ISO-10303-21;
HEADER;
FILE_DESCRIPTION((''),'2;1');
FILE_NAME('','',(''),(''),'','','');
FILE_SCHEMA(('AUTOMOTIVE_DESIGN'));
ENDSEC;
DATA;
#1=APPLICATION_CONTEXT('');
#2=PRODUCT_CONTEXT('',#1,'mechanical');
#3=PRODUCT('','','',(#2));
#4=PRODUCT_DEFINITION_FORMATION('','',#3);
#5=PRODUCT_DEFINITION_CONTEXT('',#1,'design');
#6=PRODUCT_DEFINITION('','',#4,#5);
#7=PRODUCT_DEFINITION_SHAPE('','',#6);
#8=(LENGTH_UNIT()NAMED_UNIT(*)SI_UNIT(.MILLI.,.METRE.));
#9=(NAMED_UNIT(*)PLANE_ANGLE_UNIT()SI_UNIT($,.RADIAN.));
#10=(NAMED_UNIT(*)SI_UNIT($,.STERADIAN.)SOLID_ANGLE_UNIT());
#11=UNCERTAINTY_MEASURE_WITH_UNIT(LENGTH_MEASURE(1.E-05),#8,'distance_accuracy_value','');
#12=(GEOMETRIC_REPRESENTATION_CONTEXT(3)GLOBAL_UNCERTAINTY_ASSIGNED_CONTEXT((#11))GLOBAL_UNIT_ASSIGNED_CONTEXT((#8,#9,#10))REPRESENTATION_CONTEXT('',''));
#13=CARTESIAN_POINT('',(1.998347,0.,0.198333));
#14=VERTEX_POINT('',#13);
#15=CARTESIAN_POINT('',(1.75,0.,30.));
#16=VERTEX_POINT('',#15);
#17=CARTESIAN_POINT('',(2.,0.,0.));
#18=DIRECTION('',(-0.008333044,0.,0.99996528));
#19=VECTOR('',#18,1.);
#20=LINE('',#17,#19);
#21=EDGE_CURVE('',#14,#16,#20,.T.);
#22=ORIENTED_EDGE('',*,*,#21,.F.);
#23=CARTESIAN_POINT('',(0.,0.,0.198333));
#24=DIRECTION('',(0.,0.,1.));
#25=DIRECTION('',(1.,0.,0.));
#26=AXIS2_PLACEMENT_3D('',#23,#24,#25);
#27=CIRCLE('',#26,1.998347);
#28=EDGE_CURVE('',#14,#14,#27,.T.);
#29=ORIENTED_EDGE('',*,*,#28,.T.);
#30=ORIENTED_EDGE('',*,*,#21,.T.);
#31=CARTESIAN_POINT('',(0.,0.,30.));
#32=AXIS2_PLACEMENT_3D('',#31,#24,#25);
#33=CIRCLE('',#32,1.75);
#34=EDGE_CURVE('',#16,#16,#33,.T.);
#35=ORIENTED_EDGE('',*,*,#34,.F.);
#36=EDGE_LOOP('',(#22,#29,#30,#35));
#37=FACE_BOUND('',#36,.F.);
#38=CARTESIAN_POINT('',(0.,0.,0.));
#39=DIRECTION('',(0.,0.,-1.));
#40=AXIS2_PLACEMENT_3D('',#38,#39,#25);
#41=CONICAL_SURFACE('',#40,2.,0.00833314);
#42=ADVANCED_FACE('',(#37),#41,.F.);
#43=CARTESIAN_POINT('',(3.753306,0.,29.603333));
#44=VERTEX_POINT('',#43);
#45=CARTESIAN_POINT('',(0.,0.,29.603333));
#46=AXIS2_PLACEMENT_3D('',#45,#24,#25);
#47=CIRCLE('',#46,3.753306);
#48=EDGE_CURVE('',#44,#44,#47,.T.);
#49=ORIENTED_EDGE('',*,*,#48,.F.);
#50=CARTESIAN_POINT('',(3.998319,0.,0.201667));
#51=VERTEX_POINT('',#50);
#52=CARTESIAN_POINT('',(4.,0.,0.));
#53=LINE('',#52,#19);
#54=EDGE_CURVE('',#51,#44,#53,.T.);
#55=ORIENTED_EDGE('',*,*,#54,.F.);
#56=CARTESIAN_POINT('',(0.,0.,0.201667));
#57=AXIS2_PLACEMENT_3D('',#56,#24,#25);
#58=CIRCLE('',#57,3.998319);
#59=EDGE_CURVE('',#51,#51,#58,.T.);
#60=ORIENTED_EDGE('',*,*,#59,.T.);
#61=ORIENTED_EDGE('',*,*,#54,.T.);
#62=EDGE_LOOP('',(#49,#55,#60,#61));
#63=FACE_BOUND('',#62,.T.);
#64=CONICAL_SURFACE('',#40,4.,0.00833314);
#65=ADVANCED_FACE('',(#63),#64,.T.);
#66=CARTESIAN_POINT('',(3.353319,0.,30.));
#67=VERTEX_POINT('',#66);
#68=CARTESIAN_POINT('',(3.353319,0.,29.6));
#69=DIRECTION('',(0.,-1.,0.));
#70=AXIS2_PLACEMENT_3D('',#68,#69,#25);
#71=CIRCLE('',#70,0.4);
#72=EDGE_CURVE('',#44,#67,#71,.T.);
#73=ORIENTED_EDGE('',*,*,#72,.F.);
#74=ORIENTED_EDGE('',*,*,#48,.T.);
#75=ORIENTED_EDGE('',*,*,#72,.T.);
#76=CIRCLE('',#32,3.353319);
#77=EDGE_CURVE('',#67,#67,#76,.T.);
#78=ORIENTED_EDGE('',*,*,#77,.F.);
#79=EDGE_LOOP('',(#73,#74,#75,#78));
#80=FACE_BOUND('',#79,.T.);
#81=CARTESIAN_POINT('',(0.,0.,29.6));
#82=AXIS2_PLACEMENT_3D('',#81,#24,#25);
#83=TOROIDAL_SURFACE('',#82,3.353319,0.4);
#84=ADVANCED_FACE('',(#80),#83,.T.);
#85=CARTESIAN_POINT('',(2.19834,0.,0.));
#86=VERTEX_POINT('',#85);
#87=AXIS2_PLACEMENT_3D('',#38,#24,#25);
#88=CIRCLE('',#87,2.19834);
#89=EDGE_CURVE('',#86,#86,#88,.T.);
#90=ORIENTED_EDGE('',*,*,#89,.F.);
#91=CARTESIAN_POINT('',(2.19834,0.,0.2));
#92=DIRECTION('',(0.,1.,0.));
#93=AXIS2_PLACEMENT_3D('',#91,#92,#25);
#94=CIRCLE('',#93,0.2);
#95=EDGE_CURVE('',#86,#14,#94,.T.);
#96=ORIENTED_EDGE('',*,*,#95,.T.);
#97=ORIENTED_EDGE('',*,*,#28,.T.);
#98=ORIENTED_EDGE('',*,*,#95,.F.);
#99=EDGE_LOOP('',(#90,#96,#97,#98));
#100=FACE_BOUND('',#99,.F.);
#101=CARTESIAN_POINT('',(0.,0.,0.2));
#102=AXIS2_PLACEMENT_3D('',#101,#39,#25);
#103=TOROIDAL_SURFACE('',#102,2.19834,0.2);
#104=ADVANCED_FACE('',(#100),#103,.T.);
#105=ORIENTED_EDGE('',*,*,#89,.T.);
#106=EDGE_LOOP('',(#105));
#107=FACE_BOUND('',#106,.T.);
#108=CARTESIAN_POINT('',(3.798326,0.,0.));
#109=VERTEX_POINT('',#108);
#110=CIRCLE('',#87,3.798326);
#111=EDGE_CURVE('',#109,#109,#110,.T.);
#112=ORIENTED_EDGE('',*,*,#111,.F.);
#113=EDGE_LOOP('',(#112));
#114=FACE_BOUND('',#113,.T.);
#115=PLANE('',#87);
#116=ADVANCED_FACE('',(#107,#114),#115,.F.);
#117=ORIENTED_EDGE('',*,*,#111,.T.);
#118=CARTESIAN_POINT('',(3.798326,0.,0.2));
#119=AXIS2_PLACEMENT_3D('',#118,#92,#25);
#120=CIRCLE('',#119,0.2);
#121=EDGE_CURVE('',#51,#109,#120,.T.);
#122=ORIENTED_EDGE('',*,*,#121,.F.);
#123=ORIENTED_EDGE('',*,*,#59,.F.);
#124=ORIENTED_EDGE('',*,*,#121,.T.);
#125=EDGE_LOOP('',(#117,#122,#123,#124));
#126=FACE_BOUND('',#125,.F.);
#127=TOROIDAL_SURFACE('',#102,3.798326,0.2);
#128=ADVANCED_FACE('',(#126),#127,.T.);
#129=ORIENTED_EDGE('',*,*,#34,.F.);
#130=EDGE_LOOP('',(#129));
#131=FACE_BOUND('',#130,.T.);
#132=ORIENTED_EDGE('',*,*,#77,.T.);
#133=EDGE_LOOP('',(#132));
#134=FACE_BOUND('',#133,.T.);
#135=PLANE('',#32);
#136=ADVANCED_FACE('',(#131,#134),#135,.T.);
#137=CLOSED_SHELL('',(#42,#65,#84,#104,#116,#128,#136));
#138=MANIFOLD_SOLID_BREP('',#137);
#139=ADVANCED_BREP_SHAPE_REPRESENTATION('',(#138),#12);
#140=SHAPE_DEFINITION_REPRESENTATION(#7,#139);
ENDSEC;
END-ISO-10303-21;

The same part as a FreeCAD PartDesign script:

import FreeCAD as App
import Part
import Sketcher

V = App.Vector
Q = App.Units.Quantity


def edges_at(feature, points):
    """Names of the edges that pass closest to the given points."""
    edges = feature.Shape.Edges
    near = lambda p: min(range(len(edges)), key=lambda i: edges[i].distToShape(Part.Vertex(*p))[0])
    return sorted({f"Edge{near(p) + 1}" for p in points})


def add_polygon(sketch, points):
    """Adds a closed chain of lines whose ends are joined by coincident constraints."""
    first, n = sketch.GeometryCount, len(points)
    for a, b in zip(points, points[1:] + points[:1]):
        sketch.addGeometry(Part.LineSegment(App.Vector(*a, 0), App.Vector(*b, 0)), False)
    for i in range(n):
        sketch.addConstraint(Sketcher.Constraint("Coincident", first + i, 2, first + (i + 1) % n, 1))

doc = App.newDocument("Part")
body = doc.addObject("PartDesign::Body", "Body")

# Sketch on XZ plane
sketch1 = doc.addObject("Sketcher::SketchObject", "Sketch")
body.addObject(sketch1)
sketch1.AttachmentSupport = (doc.XZ_Plane, [""])
sketch1.MapMode = "FlatFace"
add_polygon(sketch1, [(0, 0), (2, 0), (1.8, 30), (0, 30)])  # lines 0-3
sketch1.addConstraint([
    Sketcher.Constraint("Horizontal", 0),
    Sketcher.Constraint("Horizontal", 2),
    Sketcher.Constraint("Vertical", 3),
    Sketcher.Constraint("Coincident", 3, 2, -1, 1),
    Sketcher.Constraint("DistanceX", 0, 1, 0, 2, Q("2 mm")),
    Sketcher.Constraint("DistanceY", 3, 2, 3, 1, Q("30 mm")),
    Sketcher.Constraint("DistanceX", 2, 2, 2, 1, Q("1.75 mm")),
])
revolution = doc.addObject("PartDesign::Revolution", "Revolution")
body.addObject(revolution)
revolution.Profile = sketch1
revolution.ReferenceAxis = (sketch1, ["V_Axis"])
revolution.Angle = 360
body2 = doc.addObject("PartDesign::Body", "Body001")

# Sketch on XZ plane
sketch2 = doc.addObject("Sketcher::SketchObject", "Sketch001")
body2.addObject(sketch2)
sketch2.AttachmentSupport = (doc.getObject("XZ_Plane001"), [""])
sketch2.MapMode = "FlatFace"
add_polygon(sketch2, [(0, 0), (4, 0), (3.8, 30), (0, 30)])  # lines 0-3
sketch2.addConstraint([
    Sketcher.Constraint("Horizontal", 0),
    Sketcher.Constraint("Horizontal", 2),
    Sketcher.Constraint("Vertical", 3),
    Sketcher.Constraint("Coincident", 3, 2, -1, 1),
    Sketcher.Constraint("DistanceX", 0, 1, 0, 2, Q("4 mm")),
    Sketcher.Constraint("DistanceY", 3, 2, 3, 1, Q("30 mm")),
    Sketcher.Constraint("DistanceX", 2, 2, 2, 1, Q("3.75 mm")),
])
revolution2 = doc.addObject("PartDesign::Revolution", "Revolution001")
body2.addObject(revolution2)
revolution2.Profile = sketch2
revolution2.ReferenceAxis = (sketch2, ["V_Axis"])
revolution2.Angle = 360
doc.recompute()

boolean = doc.addObject("PartDesign::Boolean", "Boolean")
body2.addObject(boolean)
boolean.Type = "Cut"
boolean.addObjects([body])
doc.recompute()

fillet = doc.addObject("PartDesign::Fillet", "Fillet")
body2.addObject(fillet)
fillet.Base = (boolean, edges_at(boolean, [(-3.75, 0, 30)]))
fillet.Radius = 0.4
doc.recompute()

fillet2 = doc.addObject("PartDesign::Fillet", "Fillet001")
body2.addObject(fillet2)
fillet2.Base = (fillet, edges_at(fillet, [(-4, 0, 0)]))
fillet2.Radius = 0.2
doc.recompute()

fillet3 = doc.addObject("PartDesign::Fillet", "Fillet002")
body2.addObject(fillet3)
fillet3.Base = (fillet2, edges_at(fillet2, [(-2, 0, 0)]))
fillet3.Radius = 0.2

doc.recompute()
